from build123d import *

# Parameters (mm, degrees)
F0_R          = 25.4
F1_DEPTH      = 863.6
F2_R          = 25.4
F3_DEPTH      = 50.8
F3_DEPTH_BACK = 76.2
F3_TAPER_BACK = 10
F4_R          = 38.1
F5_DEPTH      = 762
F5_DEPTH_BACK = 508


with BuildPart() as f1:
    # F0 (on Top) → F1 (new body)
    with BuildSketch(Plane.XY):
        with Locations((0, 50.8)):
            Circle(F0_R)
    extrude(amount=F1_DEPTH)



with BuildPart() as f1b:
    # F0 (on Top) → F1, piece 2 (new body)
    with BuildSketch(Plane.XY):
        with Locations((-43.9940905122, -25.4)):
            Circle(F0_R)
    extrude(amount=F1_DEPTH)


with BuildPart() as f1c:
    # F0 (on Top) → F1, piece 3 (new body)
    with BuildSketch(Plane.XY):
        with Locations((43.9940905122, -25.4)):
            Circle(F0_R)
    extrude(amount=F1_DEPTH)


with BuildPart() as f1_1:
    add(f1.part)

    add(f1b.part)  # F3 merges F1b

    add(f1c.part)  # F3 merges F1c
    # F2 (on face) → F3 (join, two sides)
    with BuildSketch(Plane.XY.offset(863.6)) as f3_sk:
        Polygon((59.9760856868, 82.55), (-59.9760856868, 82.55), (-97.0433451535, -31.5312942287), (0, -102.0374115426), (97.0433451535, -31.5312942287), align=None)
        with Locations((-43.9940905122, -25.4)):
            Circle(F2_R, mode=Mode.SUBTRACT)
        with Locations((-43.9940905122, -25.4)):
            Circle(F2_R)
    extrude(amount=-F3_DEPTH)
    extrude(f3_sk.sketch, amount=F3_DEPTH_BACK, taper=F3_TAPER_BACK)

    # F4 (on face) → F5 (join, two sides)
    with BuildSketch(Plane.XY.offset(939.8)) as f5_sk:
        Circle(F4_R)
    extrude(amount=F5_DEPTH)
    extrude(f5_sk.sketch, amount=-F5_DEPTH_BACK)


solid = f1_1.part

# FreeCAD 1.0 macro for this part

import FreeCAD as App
import Part
import Sketcher
Q = App.Units.Quantity

doc = App.newDocument("Part")
body = doc.addObject("PartDesign::Body", "Body")

# Sketch on XY plane
sketch1 = body.newObject("Sketcher::SketchObject", "Sketch")
sketch1.AttachmentSupport = (doc.getObject("XY_Plane"), [""])
sketch1.MapMode = "FlatFace"
sketch1.addGeometry(Part.Circle(App.Vector(0, 51, 0), App.Vector(0, 0, 1), 25), False)
sketch1.addConstraint([
    Sketcher.Constraint("PointOnObject", 0, 3, -2),
    Sketcher.Constraint("Diameter", 0, Q("2 in")),
    Sketcher.Constraint("DistanceY", -1, 1, 0, 3, Q("2 in")),
])
pad1 = body.newObject("PartDesign::Pad", "Pad")
pad1.Profile = sketch1
pad1.Length = Q("34 in")
body2 = doc.addObject("PartDesign::Body", "Body001")

# Sketch on XY plane
sketch2 = body2.newObject("Sketcher::SketchObject", "Sketch001")
sketch2.AttachmentSupport = (doc.getObject("XY_Plane001"), [""])
sketch2.MapMode = "FlatFace"
sketch2.addGeometry(Part.Circle(App.Vector(-44, -25, 0), App.Vector(0, 0, 1), 25), False)
sketch2.addConstraint([
    Sketcher.Constraint("Diameter", 0, Q("2 in")),
    Sketcher.Constraint("DistanceY", 0, 3, -1, 1, Q("1 in")),
    Sketcher.Constraint("DistanceX", 0, 3, -1, 1, 43.994091),
])
pad2 = body2.newObject("PartDesign::Pad", "Pad001")
pad2.Profile = sketch2
pad2.Length = Q("34 in")
body3 = doc.addObject("PartDesign::Body", "Body002")

# Sketch on XY plane
sketch3 = body3.newObject("Sketcher::SketchObject", "Sketch002")
sketch3.AttachmentSupport = (doc.getObject("XY_Plane002"), [""])
sketch3.MapMode = "FlatFace"
sketch3.addGeometry(Part.Circle(App.Vector(44, -25, 0), App.Vector(0, 0, 1), 25), False)
sketch3.addConstraint([
    Sketcher.Constraint("Diameter", 0, Q("2 in")),
    Sketcher.Constraint("DistanceY", 0, 3, -1, 1, Q("1 in")),
    Sketcher.Constraint("DistanceX", -1, 1, 0, 3, 43.994091),
])
pad3 = body3.newObject("PartDesign::Pad", "Pad002")
pad3.Profile = sketch3
pad3.Length = Q("34 in")
body.AllowCompound = True
doc.recompute()

boolean = body.newObject("PartDesign::Boolean", "Boolean")
boolean.Type = "Fuse"
boolean.addObjects([body2])
doc.recompute()

boolean2 = body.newObject("PartDesign::Boolean", "Boolean001")
boolean2.Type = "Fuse"
boolean2.addObjects([body3])

# Sketch on XY plane
sketch4 = body.newObject("Sketcher::SketchObject", "Sketch003")
sketch4.AttachmentSupport = (doc.getObject("XY_Plane"), [""])
sketch4.MapMode = "FlatFace"
sketch4.AttachmentOffset = App.Placement(App.Vector(0, 0, 34 * 25.4), App.Rotation())
sketch4.addGeometry([
    Part.LineSegment(App.Vector(60, 83, 0), App.Vector(-60, 83, 0)),  # 0
    Part.LineSegment(App.Vector(-60, 83, 0), App.Vector(-97, -32, 0)),  # 1
    Part.LineSegment(App.Vector(-97, -32, 0), App.Vector(0, -102, 0)),  # 2
    Part.LineSegment(App.Vector(0, -102, 0), App.Vector(97, -32, 0)),  # 3
    Part.LineSegment(App.Vector(97, -32, 0), App.Vector(60, 83, 0)),  # 4
], False)
sketch4.addConstraint([
    Sketcher.Constraint("Coincident", 0, 2, 1, 1),
    Sketcher.Constraint("Coincident", 1, 2, 2, 1),
    Sketcher.Constraint("Coincident", 2, 2, 3, 1),
    Sketcher.Constraint("Coincident", 3, 2, 4, 1),
    Sketcher.Constraint("Coincident", 4, 2, 0, 1),
    Sketcher.Constraint("Horizontal", 0),
    Sketcher.Constraint("Symmetric", 1, 2, 3, 2, -2),
    Sketcher.Constraint("PointOnObject", 2, 2, -2),
    Sketcher.Constraint("Equal", 1, 2),
    Sketcher.Constraint("Equal", 3, 4),
    Sketcher.Constraint("Angle", 1, Q("-108 deg")),
    Sketcher.Constraint("Angle", 2, Q("-36 deg")),
    Sketcher.Constraint("DistanceY", -1, 1, 0, 2, Q("3.25 in")),
    Sketcher.Constraint("DistanceX", 0, 2, 0, 1, 119.952171),
])
pad4 = body.newObject("PartDesign::Pad", "Pad003")
pad4.Profile = sketch4
pad4.Length = Q("2 in")
pad4.Reversed = True
pad5 = body.newObject("PartDesign::Pad", "Pad004")
pad5.Profile = sketch4
pad5.Length = Q("3 in")
pad5.TaperAngle = -10

# Sketch on XY plane
sketch5 = body.newObject("Sketcher::SketchObject", "Sketch004")
sketch5.AttachmentSupport = (doc.getObject("XY_Plane"), [""])
sketch5.MapMode = "FlatFace"
sketch5.AttachmentOffset = App.Placement(App.Vector(0, 0, 37 * 25.4), App.Rotation())
sketch5.addGeometry(Part.Circle(App.Vector(0, 0, 0), App.Vector(0, 0, 1), 38), False)
sketch5.addConstraint([
    Sketcher.Constraint("Coincident", 0, 3, -1, 1),
    Sketcher.Constraint("Diameter", 0, Q("3 in")),
])
pad6 = body.newObject("PartDesign::Pad", "Pad005")
pad6.Profile = sketch5
pad6.Type = "TwoLengths"
pad6.Length = Q("30 in")
pad6.Length2 = Q("20 in")

doc.recompute()
